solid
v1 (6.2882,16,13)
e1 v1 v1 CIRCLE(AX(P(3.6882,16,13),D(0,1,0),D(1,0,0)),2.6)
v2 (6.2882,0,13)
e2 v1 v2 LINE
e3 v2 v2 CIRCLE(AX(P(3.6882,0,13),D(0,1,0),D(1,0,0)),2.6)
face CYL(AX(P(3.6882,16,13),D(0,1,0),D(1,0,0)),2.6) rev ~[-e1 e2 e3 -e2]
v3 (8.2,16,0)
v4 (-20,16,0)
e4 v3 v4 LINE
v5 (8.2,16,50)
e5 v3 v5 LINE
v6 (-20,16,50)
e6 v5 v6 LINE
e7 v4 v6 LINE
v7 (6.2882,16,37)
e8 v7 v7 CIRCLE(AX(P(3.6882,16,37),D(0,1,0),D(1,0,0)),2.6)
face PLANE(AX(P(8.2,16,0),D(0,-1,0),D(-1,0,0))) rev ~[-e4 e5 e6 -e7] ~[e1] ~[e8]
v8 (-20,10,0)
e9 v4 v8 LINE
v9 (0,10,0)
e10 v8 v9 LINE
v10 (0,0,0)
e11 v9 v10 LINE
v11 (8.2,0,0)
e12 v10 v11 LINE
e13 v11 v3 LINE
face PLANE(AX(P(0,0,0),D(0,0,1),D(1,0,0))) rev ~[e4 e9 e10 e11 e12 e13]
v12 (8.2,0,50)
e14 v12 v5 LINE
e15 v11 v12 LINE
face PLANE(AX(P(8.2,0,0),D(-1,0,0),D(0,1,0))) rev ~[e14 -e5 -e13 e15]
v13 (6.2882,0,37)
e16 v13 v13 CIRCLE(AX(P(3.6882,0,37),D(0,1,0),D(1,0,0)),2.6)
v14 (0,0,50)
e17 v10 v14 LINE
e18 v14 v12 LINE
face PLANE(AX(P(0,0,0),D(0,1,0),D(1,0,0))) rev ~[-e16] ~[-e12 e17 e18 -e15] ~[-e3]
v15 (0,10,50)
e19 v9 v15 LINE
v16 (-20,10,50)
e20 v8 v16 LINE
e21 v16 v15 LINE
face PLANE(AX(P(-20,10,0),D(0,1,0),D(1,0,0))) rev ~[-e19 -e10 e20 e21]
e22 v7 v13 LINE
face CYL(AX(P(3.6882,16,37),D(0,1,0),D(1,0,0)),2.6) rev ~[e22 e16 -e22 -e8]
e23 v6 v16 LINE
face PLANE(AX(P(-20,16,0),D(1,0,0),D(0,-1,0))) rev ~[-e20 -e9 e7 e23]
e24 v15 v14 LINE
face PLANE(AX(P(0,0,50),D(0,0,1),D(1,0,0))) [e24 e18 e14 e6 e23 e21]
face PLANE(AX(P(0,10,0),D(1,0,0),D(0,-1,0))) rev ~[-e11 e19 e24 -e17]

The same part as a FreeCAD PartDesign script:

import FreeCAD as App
import Part
import Sketcher
from FreeCAD import Vector


def add_polygon(sketch, points):
    """Adds a closed chain of lines whose ends are joined by coincident constraints."""
    first, n = sketch.GeometryCount, len(points)
    for a, b in zip(points, points[1:] + points[:1]):
        sketch.addGeometry(Part.LineSegment(App.Vector(*a, 0), App.Vector(*b, 0)), False)
    for i in range(n):
        sketch.addConstraint(Sketcher.Constraint("Coincident", first + i, 2, first + (i + 1) % n, 1))

doc = App.newDocument("Part")
body = doc.addObject("PartDesign::Body", "Body")

sketch1 = doc.addObject("Sketcher::SketchObject", "Sketch")
body.addObject(sketch1)
sketch1.AttachmentSupport = (doc.XY_Plane, [""])
sketch1.MapMode = "FlatFace"
add_polygon(sketch1, [(0, 0), (8, 0), (8, 16), (-20, 16), (-20, 10), (0, 10)])
sketch1.addConstraint([
    Sketcher.Constraint("Horizontal", 0),
    Sketcher.Constraint("Vertical", 1),
    Sketcher.Constraint("Horizontal", 2),
    Sketcher.Constraint("Vertical", 3),
    Sketcher.Constraint("Horizontal", 4),
    Sketcher.Constraint("Vertical", 5),
    Sketcher.Constraint("Coincident", 5, 2, -1, 1),
    Sketcher.Constraint("DistanceX", 4, 1, 4, 2, 20.0),
    Sketcher.Constraint("DistanceY", 3, 2, 3, 1, 6.0),
    Sketcher.Constraint("DistanceY", 5, 2, 5, 1, 10.0),
    Sketcher.Constraint("DistanceX", 0, 1, 0, 2, 8.2),
])
pad1 = doc.addObject("PartDesign::Pad", "Pad")
body.addObject(pad1)
pad1.Profile = sketch1
pad1.Length = 50

sketch2 = doc.addObject("Sketcher::SketchObject", "Sketch001")
body.addObject(sketch2)
sketch2.AttachmentSupport = (doc.XZ_Plane, [""])
sketch2.MapMode = "FlatFace"
sketch2.AttachmentOffset = App.Placement(Vector(0, 0, -16), App.Rotation())
sketch2.addGeometry([
    Part.Circle(Vector(3.7, 13, 0), Vector(0, 0, 1), 2.6),
    Part.Circle(Vector(3.7, 37, 0), Vector(0, 0, 1), 2.6),
], False)
sketch2.addConstraint([
    Sketcher.Constraint("Equal", 0, 1),
    Sketcher.Constraint("Vertical", 0, 3, 1, 3),
    Sketcher.Constraint("Diameter", 0, 5.2),
    Sketcher.Constraint("DistanceY", -1, 1, 0, 3, 13.0),
    Sketcher.Constraint("DistanceY", 0, 3, 1, 3, 24.0),
    Sketcher.Constraint("DistanceX", -1, 1, 0, 3, 3.6882),
])
pocket1 = doc.addObject("PartDesign::Pocket", "Pocket")
body.addObject(pocket1)
pocket1.Profile = sketch2
pocket1.Length = 20
pocket1.Reversed = True

doc.recompute()
